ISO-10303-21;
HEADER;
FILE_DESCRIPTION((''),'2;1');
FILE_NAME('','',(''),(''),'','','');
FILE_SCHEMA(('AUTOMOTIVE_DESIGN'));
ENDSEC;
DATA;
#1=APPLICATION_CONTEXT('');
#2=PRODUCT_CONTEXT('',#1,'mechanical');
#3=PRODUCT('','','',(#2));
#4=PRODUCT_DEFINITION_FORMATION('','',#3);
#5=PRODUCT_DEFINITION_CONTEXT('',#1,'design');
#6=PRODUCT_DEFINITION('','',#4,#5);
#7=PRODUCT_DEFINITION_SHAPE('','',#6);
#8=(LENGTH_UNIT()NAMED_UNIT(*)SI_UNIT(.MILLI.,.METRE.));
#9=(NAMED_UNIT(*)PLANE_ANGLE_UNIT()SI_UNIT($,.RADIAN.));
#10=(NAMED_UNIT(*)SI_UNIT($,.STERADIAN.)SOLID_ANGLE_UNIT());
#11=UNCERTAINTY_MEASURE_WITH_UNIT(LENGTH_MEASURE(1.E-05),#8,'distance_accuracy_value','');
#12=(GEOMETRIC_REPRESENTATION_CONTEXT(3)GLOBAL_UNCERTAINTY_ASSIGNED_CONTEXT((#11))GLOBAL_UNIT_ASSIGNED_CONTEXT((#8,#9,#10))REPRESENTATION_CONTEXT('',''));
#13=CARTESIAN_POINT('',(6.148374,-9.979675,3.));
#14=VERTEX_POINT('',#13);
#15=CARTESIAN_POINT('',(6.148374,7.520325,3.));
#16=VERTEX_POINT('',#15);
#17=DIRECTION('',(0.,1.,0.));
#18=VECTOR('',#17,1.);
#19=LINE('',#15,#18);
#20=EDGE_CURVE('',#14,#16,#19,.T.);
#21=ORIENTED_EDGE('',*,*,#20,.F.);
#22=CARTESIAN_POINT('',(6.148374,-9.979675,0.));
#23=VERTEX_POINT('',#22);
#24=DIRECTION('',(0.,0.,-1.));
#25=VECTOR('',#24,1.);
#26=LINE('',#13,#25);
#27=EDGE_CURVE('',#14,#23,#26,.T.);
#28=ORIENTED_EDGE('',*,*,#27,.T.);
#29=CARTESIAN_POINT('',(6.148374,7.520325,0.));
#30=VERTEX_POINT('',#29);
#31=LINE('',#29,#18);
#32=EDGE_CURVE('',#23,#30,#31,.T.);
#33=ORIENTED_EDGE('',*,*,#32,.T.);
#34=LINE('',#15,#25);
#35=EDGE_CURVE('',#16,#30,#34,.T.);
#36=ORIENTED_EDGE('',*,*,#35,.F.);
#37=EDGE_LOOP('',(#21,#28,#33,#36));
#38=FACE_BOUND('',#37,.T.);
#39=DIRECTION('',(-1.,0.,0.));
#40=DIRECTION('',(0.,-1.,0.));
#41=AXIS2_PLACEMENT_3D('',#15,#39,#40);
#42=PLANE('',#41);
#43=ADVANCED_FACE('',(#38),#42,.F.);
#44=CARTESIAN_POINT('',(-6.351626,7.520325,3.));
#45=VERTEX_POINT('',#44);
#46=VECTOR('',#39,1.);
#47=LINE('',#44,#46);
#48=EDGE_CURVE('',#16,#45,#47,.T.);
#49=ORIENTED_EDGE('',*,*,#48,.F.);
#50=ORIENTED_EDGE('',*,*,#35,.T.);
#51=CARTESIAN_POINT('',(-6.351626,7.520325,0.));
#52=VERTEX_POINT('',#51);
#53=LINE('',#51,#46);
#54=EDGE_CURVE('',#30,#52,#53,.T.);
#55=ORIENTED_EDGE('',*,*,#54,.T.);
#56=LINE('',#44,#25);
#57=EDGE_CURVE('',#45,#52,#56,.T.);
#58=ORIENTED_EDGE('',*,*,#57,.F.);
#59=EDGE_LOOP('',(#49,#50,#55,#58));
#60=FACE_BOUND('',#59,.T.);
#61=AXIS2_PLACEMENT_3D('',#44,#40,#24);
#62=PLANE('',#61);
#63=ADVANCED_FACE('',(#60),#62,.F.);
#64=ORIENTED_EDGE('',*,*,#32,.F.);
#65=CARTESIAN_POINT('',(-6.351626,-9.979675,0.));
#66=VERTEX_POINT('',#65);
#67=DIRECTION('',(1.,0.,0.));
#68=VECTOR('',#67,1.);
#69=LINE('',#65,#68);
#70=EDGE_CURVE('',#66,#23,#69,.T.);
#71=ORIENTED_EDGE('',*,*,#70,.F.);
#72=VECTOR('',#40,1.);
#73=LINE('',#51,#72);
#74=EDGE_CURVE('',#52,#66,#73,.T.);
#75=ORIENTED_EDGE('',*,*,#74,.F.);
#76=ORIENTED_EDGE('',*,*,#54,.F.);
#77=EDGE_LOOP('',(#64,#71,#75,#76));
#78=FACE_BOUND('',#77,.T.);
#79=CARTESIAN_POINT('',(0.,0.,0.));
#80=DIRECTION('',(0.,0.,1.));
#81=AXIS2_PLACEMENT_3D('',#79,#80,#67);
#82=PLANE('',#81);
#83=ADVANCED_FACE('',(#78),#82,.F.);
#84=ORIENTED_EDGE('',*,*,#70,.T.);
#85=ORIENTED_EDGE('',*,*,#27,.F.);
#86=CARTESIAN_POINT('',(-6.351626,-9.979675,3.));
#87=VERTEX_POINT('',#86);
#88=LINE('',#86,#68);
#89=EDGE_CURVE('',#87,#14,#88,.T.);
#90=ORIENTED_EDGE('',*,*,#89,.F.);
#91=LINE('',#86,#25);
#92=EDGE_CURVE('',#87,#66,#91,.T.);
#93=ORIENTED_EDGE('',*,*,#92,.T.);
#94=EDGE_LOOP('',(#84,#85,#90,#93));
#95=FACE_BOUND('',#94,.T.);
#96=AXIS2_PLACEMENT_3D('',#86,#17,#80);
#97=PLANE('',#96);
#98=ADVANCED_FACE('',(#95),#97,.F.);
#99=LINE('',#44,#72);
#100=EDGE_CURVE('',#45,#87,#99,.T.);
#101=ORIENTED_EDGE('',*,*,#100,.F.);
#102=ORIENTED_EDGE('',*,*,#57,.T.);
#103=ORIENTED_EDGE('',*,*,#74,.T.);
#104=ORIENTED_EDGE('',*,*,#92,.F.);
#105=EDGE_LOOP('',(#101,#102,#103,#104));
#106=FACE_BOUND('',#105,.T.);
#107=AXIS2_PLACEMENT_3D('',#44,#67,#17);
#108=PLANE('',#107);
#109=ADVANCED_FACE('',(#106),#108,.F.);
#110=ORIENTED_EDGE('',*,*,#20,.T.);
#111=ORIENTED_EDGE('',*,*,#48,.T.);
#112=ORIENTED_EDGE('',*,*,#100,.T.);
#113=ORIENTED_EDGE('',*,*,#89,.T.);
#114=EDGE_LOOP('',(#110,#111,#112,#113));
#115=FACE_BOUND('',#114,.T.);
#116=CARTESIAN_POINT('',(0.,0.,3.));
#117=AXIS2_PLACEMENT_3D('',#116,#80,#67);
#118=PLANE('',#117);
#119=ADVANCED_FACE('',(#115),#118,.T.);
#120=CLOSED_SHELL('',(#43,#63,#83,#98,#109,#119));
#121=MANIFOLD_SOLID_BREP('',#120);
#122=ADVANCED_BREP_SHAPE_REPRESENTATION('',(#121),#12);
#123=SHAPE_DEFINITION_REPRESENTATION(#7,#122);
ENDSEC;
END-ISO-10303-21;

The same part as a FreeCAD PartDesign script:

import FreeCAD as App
import Part
import Sketcher

doc = App.newDocument("Part")
body = doc.addObject("PartDesign::Body", "Body")

# Sketch on XY plane
sketch1 = body.newObject("Sketcher::SketchObject", "Sketch")
sketch1.AttachmentSupport = (doc.getObject("XY_Plane"), [""])
sketch1.MapMode = "FlatFace"
sketch1.addGeometry(Part.LineSegment(App.Vector(-6.351626, 7.520325, 0), App.Vector(-6.351626, -9.979675, 0)), False)
sketch1.addGeometry(Part.LineSegment(App.Vector(-6.351626, -9.979675, 0), App.Vector(6.148374, -9.979675, 0)), False)
sketch1.addGeometry(Part.LineSegment(App.Vector(6.148374, -9.979675, 0), App.Vector(6.148374, 7.520325, 0)), False)
sketch1.addGeometry(Part.LineSegment(App.Vector(6.148374, 7.520325, 0), App.Vector(-6.351626, 7.520325, 0)), False)
sketch1.addConstraint(Sketcher.Constraint("Coincident", 0, 2, 1, 1))
sketch1.addConstraint(Sketcher.Constraint("Coincident", 1, 2, 2, 1))
sketch1.addConstraint(Sketcher.Constraint("Coincident", 2, 2, 3, 1))
sketch1.addConstraint(Sketcher.Constraint("Coincident", 3, 2, 0, 1))
sketch1.addConstraint(Sketcher.Constraint("Vertical", 0))
sketch1.addConstraint(Sketcher.Constraint("Horizontal", 1))
sketch1.addConstraint(Sketcher.Constraint("Vertical", 2))
sketch1.addConstraint(Sketcher.Constraint("Horizontal", 3))
sketch1.addConstraint(Sketcher.Constraint("DistanceX", 1, 1, 1, 2, 12.5))
sketch1.addConstraint(Sketcher.Constraint("DistanceY", 0, 2, 0, 1, 17.5))
sketch1.addConstraint(Sketcher.Constraint("DistanceX", 0, 2, -1, 1, 6.351626))
sketch1.addConstraint(Sketcher.Constraint("DistanceY", 0, 2, -1, 1, 9.979675))
pad1 = body.newObject("PartDesign::Pad", "Pad")
pad1.Profile = sketch1
pad1.Length = 3

doc.recompute()
